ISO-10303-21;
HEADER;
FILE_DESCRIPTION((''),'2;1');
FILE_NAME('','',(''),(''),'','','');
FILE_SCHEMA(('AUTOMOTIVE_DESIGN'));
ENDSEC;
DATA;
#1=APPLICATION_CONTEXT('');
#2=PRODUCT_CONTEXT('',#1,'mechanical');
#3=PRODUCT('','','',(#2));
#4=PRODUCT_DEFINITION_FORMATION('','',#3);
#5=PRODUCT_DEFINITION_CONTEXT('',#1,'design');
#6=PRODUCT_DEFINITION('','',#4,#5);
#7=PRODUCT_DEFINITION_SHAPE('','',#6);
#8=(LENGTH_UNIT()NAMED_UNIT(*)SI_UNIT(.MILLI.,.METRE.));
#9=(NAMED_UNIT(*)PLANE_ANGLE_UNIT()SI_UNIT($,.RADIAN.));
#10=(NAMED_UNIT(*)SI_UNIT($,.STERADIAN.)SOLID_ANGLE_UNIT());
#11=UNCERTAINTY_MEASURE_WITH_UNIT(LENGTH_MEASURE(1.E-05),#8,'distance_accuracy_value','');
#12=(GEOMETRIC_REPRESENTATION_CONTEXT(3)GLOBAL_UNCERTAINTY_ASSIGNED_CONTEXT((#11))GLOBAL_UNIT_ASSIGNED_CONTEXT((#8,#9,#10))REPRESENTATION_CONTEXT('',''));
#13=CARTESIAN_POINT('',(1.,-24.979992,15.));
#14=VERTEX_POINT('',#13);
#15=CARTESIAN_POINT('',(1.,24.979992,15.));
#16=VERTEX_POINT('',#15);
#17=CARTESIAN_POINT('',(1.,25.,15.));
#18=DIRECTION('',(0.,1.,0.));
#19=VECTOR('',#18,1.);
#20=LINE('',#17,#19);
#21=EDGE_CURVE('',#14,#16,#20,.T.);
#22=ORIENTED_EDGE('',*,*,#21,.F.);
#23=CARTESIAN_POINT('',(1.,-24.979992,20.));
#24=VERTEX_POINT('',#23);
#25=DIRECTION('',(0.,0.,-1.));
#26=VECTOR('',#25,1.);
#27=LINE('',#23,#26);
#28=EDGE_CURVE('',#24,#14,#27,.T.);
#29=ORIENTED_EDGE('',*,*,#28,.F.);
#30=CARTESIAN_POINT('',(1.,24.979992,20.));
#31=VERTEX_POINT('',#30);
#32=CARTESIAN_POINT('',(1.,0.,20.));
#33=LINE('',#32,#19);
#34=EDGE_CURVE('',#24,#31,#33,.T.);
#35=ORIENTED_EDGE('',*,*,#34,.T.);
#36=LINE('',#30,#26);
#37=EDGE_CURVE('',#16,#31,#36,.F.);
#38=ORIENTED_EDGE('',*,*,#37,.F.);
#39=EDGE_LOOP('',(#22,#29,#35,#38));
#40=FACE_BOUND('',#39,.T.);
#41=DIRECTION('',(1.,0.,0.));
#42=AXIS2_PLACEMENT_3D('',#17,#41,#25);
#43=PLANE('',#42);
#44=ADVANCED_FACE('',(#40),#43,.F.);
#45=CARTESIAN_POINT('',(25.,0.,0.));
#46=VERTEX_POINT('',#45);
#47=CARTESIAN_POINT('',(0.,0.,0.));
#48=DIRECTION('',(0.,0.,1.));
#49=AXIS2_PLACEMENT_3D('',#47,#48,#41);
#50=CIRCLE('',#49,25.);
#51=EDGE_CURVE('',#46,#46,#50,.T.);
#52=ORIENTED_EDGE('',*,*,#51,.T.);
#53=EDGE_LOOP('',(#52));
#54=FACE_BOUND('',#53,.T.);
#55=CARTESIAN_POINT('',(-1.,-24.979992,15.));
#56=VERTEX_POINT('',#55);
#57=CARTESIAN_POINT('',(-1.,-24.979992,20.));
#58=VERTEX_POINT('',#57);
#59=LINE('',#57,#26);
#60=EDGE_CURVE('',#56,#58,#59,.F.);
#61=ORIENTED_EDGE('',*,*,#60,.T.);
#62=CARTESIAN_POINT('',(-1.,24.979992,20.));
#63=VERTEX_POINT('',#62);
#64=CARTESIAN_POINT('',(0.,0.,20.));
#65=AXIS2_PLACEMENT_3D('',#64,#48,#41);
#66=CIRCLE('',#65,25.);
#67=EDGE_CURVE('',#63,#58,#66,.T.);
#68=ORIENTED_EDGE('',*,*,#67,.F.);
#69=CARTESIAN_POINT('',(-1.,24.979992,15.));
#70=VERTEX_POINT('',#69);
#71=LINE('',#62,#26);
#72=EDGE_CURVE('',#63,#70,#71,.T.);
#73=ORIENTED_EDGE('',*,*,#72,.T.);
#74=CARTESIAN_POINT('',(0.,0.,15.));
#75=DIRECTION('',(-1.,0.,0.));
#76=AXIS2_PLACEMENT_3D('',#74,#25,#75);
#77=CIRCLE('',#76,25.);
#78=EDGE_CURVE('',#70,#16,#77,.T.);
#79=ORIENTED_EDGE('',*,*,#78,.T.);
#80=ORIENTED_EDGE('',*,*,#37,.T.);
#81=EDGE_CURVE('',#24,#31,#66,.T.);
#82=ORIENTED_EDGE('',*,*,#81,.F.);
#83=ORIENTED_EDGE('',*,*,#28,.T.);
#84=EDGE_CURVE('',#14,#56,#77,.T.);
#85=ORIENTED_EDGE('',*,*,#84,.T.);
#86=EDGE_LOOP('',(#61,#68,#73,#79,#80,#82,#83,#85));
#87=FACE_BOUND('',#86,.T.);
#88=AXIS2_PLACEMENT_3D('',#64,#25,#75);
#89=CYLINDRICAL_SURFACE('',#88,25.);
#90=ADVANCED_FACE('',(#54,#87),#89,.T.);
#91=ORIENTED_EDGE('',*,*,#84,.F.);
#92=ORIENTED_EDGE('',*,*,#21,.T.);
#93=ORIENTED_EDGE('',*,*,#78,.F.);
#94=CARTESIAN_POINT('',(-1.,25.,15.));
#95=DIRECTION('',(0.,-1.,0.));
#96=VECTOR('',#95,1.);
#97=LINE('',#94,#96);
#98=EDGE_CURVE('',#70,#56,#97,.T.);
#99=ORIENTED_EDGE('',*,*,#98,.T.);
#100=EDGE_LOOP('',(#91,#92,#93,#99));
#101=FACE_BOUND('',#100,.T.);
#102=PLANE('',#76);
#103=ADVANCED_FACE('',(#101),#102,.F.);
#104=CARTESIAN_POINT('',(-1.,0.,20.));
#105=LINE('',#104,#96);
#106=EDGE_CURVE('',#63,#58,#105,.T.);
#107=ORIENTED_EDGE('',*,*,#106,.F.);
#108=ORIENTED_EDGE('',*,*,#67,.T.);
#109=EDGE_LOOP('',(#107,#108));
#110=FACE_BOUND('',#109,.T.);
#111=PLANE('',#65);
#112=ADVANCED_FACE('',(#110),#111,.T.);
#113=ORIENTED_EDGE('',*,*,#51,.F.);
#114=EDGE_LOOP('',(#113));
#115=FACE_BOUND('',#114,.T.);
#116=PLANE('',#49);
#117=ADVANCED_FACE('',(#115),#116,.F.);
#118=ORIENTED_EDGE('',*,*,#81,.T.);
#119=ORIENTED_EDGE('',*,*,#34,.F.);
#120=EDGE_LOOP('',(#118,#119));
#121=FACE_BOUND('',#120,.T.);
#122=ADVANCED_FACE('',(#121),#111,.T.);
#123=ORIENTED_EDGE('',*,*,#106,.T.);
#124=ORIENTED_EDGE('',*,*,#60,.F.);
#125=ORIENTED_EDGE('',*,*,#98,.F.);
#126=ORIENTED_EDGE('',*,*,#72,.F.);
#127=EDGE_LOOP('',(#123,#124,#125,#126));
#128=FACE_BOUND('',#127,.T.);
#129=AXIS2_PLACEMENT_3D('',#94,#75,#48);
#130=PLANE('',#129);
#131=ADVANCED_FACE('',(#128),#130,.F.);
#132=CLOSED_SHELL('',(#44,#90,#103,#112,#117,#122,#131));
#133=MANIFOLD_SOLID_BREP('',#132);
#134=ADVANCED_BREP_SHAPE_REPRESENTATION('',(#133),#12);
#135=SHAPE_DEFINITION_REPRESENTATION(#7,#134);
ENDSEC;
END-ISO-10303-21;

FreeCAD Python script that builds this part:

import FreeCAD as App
import Part
import Sketcher


def add_polygon(sketch, points):
    """Adds a closed chain of lines whose ends are joined by coincident constraints."""
    first, n = sketch.GeometryCount, len(points)
    for a, b in zip(points, points[1:] + points[:1]):
        sketch.addGeometry(Part.LineSegment(App.Vector(*a, 0), App.Vector(*b, 0)), False)
    for i in range(n):
        sketch.addConstraint(Sketcher.Constraint("Coincident", first + i, 2, first + (i + 1) % n, 1))

doc = App.newDocument("Part")
body = doc.addObject("PartDesign::Body", "Body")

# Sketch on XY plane
sketch1 = body.newObject("Sketcher::SketchObject", "Sketch")
sketch1.AttachmentSupport = (doc.getObject("XY_Plane"), [""])
sketch1.MapMode = "FlatFace"
sketch1.addGeometry(Part.Circle(App.Vector(0, 0, 0), App.Vector(0, 0, 1), 25), False)
sketch1.addConstraint([
    Sketcher.Constraint("Coincident", 0, 3, -1, 1),
    Sketcher.Constraint("Diameter", 0, 50.0),
])
pad1 = body.newObject("PartDesign::Pad", "Pad")
pad1.Profile = sketch1
pad1.Length = 20

# Sketch on XY plane
sketch2 = body.newObject("Sketcher::SketchObject", "Sketch001")
sketch2.AttachmentSupport = (doc.getObject("XY_Plane"), [""])
sketch2.MapMode = "FlatFace"
sketch2.AttachmentOffset = App.Placement(App.Vector(0, 0, 20), App.Rotation())
add_polygon(sketch2, [(-1, 25), (-1, -25), (1, -25), (1, 25)])  # lines 0-3
sketch2.addConstraint([
    Sketcher.Constraint("Vertical", 0),
    Sketcher.Constraint("Horizontal", 1),
    Sketcher.Constraint("Vertical", 2),
    Sketcher.Constraint("Horizontal", 3),
    Sketcher.Constraint("Symmetric", 0, 2, 2, 2, -1, 1),
    Sketcher.Constraint("DistanceX", 1, 1, 1, 2, 2.0),
    Sketcher.Constraint("DistanceY", 0, 2, 0, 1, 50.0),
])
pocket1 = body.newObject("PartDesign::Pocket", "Pocket")
pocket1.Profile = sketch2
pocket1.Length = 5

doc.recompute()
